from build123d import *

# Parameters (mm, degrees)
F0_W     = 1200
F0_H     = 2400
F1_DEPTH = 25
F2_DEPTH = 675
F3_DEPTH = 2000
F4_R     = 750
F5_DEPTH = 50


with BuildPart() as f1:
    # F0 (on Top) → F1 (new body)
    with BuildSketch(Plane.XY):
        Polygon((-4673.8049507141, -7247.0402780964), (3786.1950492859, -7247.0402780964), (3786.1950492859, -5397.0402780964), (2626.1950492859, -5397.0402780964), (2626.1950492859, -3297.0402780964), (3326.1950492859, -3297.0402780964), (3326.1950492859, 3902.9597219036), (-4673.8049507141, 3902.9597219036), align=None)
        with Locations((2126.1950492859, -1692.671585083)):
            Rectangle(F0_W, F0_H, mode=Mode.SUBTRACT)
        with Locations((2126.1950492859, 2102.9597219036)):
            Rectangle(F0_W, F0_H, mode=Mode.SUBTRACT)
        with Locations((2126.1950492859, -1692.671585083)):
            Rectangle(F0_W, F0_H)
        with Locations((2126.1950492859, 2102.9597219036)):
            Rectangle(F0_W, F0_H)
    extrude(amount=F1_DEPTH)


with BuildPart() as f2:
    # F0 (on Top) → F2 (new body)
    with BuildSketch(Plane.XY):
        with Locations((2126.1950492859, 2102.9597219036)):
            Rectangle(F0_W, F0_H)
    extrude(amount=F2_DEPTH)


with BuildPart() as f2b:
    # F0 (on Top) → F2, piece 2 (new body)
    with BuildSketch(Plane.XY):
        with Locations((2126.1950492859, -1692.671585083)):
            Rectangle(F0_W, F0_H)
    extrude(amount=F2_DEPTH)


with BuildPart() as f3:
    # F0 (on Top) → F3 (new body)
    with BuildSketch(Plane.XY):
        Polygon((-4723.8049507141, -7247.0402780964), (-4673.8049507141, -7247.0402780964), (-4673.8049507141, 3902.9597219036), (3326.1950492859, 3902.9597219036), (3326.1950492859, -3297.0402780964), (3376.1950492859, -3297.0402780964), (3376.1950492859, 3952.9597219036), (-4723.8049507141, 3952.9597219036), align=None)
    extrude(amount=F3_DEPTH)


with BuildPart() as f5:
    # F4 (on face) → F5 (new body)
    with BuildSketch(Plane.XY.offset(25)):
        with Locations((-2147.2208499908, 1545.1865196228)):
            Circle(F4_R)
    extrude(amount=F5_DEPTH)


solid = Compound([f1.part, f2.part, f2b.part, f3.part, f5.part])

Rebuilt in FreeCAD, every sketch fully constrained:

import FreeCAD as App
import Part
import Sketcher


def add_polygon(sketch, points):
    """Adds a closed chain of lines whose ends are joined by coincident constraints."""
    first, n = sketch.GeometryCount, len(points)
    for a, b in zip(points, points[1:] + points[:1]):
        sketch.addGeometry(Part.LineSegment(App.Vector(*a, 0), App.Vector(*b, 0)), False)
    for i in range(n):
        sketch.addConstraint(Sketcher.Constraint("Coincident", first + i, 2, first + (i + 1) % n, 1))

doc = App.newDocument("Part")
body = doc.addObject("PartDesign::Body", "Body")

sketch1 = body.newObject("Sketcher::SketchObject", "Sketch")
sketch1.AttachmentSupport = (doc.getObject("XY_Plane"), [""])
sketch1.MapMode = "FlatFace"
add_polygon(sketch1, [(-4673.804951, -7247.040278), (3786.195049, -7247.040278), (3786.195049, -5397.040278), (2626.195049, -5397.040278), (2626.195049, -3297.040278), (3326.195049, -3297.040278), (3326.195049, 3902.959722), (-4673.804951, 3902.959722)])
sketch1.addConstraint(Sketcher.Constraint("Horizontal", 0))
sketch1.addConstraint(Sketcher.Constraint("Vertical", 1))
sketch1.addConstraint(Sketcher.Constraint("Horizontal", 2))
sketch1.addConstraint(Sketcher.Constraint("Vertical", 3))
sketch1.addConstraint(Sketcher.Constraint("Horizontal", 4))
sketch1.addConstraint(Sketcher.Constraint("Vertical", 5))
sketch1.addConstraint(Sketcher.Constraint("Horizontal", 6))
sketch1.addConstraint(Sketcher.Constraint("Vertical", 7))
sketch1.addConstraint(Sketcher.Constraint("DistanceX", 0, 1, 0, 2, 8460.0))
sketch1.addConstraint(Sketcher.Constraint("DistanceX", 2, 2, 2, 1, 1160.0))
sketch1.addConstraint(Sketcher.Constraint("DistanceX", 4, 1, 4, 2, 700.0))
sketch1.addConstraint(Sketcher.Constraint("DistanceY", 1, 1, 1, 2, 1850.0))
sketch1.addConstraint(Sketcher.Constraint("DistanceY", 3, 1, 3, 2, 2100.0))
sketch1.addConstraint(Sketcher.Constraint("DistanceY", 5, 1, 5, 2, 7200.0))
sketch1.addConstraint(Sketcher.Constraint("DistanceX", -1, 1, 0, 2, 3786.195049))
sketch1.addConstraint(Sketcher.Constraint("DistanceY", 0, 2, -1, 1, 7247.040278))
pad1 = body.newObject("PartDesign::Pad", "Pad")
pad1.Profile = sketch1
pad1.Length = 25
body2 = doc.addObject("PartDesign::Body", "Body001")

sketch2 = body2.newObject("Sketcher::SketchObject", "Sketch001")
sketch2.AttachmentSupport = (doc.getObject("XY_Plane001"), [""])
sketch2.MapMode = "FlatFace"
add_polygon(sketch2, [(1526.195049, 3302.959722), (1526.195049, 902.959722), (2726.195049, 902.959722), (2726.195049, 3302.959722)])
sketch2.addConstraint(Sketcher.Constraint("Vertical", 0))
sketch2.addConstraint(Sketcher.Constraint("Horizontal", 1))
sketch2.addConstraint(Sketcher.Constraint("Vertical", 2))
sketch2.addConstraint(Sketcher.Constraint("Horizontal", 3))
sketch2.addConstraint(Sketcher.Constraint("DistanceX", 1, 1, 1, 2, 1200.0))
sketch2.addConstraint(Sketcher.Constraint("DistanceY", 0, 2, 0, 1, 2400.0))
sketch2.addConstraint(Sketcher.Constraint("DistanceX", -1, 1, 0, 2, 1526.195049))
sketch2.addConstraint(Sketcher.Constraint("DistanceY", -1, 1, 0, 2, 902.959722))
pad2 = body2.newObject("PartDesign::Pad", "Pad001")
pad2.Profile = sketch2
pad2.Length = 675
body3 = doc.addObject("PartDesign::Body", "Body002")

sketch3 = body3.newObject("Sketcher::SketchObject", "Sketch002")
sketch3.AttachmentSupport = (doc.getObject("XY_Plane002"), [""])
sketch3.MapMode = "FlatFace"
add_polygon(sketch3, [(1526.195049, -492.671585), (1526.195049, -2892.671585), (2726.195049, -2892.671585), (2726.195049, -492.671585)])
sketch3.addConstraint(Sketcher.Constraint("Vertical", 0))
sketch3.addConstraint(Sketcher.Constraint("Horizontal", 1))
sketch3.addConstraint(Sketcher.Constraint("Vertical", 2))
sketch3.addConstraint(Sketcher.Constraint("Horizontal", 3))
sketch3.addConstraint(Sketcher.Constraint("DistanceX", 1, 1, 1, 2, 1200.0))
sketch3.addConstraint(Sketcher.Constraint("DistanceY", 0, 2, 0, 1, 2400.0))
sketch3.addConstraint(Sketcher.Constraint("DistanceX", -1, 1, 0, 2, 1526.195049))
sketch3.addConstraint(Sketcher.Constraint("DistanceY", 0, 2, -1, 1, 2892.671585))
pad3 = body3.newObject("PartDesign::Pad", "Pad002")
pad3.Profile = sketch3
pad3.Length = 675
body4 = doc.addObject("PartDesign::Body", "Body003")

sketch4 = body4.newObject("Sketcher::SketchObject", "Sketch003")
sketch4.AttachmentSupport = (doc.getObject("XY_Plane003"), [""])
sketch4.MapMode = "FlatFace"
add_polygon(sketch4, [(-4723.804951, -7247.040278), (-4673.804951, -7247.040278), (-4673.804951, 3902.959722), (3326.195049, 3902.959722), (3326.195049, -3297.040278), (3376.195049, -3297.040278), (3376.195049, 3952.959722), (-4723.804951, 3952.959722)])
sketch4.addConstraint(Sketcher.Constraint("Horizontal", 0))
sketch4.addConstraint(Sketcher.Constraint("Vertical", 1))
sketch4.addConstraint(Sketcher.Constraint("Horizontal", 2))
sketch4.addConstraint(Sketcher.Constraint("Vertical", 3))
sketch4.addConstraint(Sketcher.Constraint("Horizontal", 4))
sketch4.addConstraint(Sketcher.Constraint("Vertical", 5))
sketch4.addConstraint(Sketcher.Constraint("Horizontal", 6))
sketch4.addConstraint(Sketcher.Constraint("Vertical", 7))
sketch4.addConstraint(Sketcher.Constraint("Equal", 0, 4))
sketch4.addConstraint(Sketcher.Constraint("DistanceX", 0, 1, 0, 2, 50.0))
sketch4.addConstraint(Sketcher.Constraint("DistanceX", 2, 1, 2, 2, 8000.0))
sketch4.addConstraint(Sketcher.Constraint("DistanceY", 1, 1, 1, 2, 11150.0))
sketch4.addConstraint(Sketcher.Constraint("DistanceY", 3, 2, 3, 1, 7200.0))
sketch4.addConstraint(Sketcher.Constraint("DistanceY", 5, 1, 5, 2, 7250.0))
sketch4.addConstraint(Sketcher.Constraint("DistanceX", 0, 2, -1, 1, 4673.804951))
sketch4.addConstraint(Sketcher.Constraint("DistanceY", 0, 2, -1, 1, 7247.040278))
pad4 = body4.newObject("PartDesign::Pad", "Pad003")
pad4.Profile = sketch4
pad4.Length = 2000
body5 = doc.addObject("PartDesign::Body", "Body004")

sketch5 = body5.newObject("Sketcher::SketchObject", "Sketch004")
sketch5.AttachmentSupport = (doc.getObject("XY_Plane004"), [""])
sketch5.MapMode = "FlatFace"
sketch5.AttachmentOffset = App.Placement(App.Vector(0, 0, 25), App.Rotation())
sketch5.addGeometry(Part.Circle(App.Vector(-2147.22085, 1545.18652, 0), App.Vector(0, 0, 1), 750), False)
sketch5.addConstraint(Sketcher.Constraint("Diameter", 0, 1500.0))
sketch5.addConstraint(Sketcher.Constraint("DistanceX", 0, 3, -1, 1, 2147.22085))
sketch5.addConstraint(Sketcher.Constraint("DistanceY", -1, 1, 0, 3, 1545.18652))
pad5 = body5.newObject("PartDesign::Pad", "Pad004")
pad5.Profile = sketch5
pad5.Length = 50

doc.recompute()
